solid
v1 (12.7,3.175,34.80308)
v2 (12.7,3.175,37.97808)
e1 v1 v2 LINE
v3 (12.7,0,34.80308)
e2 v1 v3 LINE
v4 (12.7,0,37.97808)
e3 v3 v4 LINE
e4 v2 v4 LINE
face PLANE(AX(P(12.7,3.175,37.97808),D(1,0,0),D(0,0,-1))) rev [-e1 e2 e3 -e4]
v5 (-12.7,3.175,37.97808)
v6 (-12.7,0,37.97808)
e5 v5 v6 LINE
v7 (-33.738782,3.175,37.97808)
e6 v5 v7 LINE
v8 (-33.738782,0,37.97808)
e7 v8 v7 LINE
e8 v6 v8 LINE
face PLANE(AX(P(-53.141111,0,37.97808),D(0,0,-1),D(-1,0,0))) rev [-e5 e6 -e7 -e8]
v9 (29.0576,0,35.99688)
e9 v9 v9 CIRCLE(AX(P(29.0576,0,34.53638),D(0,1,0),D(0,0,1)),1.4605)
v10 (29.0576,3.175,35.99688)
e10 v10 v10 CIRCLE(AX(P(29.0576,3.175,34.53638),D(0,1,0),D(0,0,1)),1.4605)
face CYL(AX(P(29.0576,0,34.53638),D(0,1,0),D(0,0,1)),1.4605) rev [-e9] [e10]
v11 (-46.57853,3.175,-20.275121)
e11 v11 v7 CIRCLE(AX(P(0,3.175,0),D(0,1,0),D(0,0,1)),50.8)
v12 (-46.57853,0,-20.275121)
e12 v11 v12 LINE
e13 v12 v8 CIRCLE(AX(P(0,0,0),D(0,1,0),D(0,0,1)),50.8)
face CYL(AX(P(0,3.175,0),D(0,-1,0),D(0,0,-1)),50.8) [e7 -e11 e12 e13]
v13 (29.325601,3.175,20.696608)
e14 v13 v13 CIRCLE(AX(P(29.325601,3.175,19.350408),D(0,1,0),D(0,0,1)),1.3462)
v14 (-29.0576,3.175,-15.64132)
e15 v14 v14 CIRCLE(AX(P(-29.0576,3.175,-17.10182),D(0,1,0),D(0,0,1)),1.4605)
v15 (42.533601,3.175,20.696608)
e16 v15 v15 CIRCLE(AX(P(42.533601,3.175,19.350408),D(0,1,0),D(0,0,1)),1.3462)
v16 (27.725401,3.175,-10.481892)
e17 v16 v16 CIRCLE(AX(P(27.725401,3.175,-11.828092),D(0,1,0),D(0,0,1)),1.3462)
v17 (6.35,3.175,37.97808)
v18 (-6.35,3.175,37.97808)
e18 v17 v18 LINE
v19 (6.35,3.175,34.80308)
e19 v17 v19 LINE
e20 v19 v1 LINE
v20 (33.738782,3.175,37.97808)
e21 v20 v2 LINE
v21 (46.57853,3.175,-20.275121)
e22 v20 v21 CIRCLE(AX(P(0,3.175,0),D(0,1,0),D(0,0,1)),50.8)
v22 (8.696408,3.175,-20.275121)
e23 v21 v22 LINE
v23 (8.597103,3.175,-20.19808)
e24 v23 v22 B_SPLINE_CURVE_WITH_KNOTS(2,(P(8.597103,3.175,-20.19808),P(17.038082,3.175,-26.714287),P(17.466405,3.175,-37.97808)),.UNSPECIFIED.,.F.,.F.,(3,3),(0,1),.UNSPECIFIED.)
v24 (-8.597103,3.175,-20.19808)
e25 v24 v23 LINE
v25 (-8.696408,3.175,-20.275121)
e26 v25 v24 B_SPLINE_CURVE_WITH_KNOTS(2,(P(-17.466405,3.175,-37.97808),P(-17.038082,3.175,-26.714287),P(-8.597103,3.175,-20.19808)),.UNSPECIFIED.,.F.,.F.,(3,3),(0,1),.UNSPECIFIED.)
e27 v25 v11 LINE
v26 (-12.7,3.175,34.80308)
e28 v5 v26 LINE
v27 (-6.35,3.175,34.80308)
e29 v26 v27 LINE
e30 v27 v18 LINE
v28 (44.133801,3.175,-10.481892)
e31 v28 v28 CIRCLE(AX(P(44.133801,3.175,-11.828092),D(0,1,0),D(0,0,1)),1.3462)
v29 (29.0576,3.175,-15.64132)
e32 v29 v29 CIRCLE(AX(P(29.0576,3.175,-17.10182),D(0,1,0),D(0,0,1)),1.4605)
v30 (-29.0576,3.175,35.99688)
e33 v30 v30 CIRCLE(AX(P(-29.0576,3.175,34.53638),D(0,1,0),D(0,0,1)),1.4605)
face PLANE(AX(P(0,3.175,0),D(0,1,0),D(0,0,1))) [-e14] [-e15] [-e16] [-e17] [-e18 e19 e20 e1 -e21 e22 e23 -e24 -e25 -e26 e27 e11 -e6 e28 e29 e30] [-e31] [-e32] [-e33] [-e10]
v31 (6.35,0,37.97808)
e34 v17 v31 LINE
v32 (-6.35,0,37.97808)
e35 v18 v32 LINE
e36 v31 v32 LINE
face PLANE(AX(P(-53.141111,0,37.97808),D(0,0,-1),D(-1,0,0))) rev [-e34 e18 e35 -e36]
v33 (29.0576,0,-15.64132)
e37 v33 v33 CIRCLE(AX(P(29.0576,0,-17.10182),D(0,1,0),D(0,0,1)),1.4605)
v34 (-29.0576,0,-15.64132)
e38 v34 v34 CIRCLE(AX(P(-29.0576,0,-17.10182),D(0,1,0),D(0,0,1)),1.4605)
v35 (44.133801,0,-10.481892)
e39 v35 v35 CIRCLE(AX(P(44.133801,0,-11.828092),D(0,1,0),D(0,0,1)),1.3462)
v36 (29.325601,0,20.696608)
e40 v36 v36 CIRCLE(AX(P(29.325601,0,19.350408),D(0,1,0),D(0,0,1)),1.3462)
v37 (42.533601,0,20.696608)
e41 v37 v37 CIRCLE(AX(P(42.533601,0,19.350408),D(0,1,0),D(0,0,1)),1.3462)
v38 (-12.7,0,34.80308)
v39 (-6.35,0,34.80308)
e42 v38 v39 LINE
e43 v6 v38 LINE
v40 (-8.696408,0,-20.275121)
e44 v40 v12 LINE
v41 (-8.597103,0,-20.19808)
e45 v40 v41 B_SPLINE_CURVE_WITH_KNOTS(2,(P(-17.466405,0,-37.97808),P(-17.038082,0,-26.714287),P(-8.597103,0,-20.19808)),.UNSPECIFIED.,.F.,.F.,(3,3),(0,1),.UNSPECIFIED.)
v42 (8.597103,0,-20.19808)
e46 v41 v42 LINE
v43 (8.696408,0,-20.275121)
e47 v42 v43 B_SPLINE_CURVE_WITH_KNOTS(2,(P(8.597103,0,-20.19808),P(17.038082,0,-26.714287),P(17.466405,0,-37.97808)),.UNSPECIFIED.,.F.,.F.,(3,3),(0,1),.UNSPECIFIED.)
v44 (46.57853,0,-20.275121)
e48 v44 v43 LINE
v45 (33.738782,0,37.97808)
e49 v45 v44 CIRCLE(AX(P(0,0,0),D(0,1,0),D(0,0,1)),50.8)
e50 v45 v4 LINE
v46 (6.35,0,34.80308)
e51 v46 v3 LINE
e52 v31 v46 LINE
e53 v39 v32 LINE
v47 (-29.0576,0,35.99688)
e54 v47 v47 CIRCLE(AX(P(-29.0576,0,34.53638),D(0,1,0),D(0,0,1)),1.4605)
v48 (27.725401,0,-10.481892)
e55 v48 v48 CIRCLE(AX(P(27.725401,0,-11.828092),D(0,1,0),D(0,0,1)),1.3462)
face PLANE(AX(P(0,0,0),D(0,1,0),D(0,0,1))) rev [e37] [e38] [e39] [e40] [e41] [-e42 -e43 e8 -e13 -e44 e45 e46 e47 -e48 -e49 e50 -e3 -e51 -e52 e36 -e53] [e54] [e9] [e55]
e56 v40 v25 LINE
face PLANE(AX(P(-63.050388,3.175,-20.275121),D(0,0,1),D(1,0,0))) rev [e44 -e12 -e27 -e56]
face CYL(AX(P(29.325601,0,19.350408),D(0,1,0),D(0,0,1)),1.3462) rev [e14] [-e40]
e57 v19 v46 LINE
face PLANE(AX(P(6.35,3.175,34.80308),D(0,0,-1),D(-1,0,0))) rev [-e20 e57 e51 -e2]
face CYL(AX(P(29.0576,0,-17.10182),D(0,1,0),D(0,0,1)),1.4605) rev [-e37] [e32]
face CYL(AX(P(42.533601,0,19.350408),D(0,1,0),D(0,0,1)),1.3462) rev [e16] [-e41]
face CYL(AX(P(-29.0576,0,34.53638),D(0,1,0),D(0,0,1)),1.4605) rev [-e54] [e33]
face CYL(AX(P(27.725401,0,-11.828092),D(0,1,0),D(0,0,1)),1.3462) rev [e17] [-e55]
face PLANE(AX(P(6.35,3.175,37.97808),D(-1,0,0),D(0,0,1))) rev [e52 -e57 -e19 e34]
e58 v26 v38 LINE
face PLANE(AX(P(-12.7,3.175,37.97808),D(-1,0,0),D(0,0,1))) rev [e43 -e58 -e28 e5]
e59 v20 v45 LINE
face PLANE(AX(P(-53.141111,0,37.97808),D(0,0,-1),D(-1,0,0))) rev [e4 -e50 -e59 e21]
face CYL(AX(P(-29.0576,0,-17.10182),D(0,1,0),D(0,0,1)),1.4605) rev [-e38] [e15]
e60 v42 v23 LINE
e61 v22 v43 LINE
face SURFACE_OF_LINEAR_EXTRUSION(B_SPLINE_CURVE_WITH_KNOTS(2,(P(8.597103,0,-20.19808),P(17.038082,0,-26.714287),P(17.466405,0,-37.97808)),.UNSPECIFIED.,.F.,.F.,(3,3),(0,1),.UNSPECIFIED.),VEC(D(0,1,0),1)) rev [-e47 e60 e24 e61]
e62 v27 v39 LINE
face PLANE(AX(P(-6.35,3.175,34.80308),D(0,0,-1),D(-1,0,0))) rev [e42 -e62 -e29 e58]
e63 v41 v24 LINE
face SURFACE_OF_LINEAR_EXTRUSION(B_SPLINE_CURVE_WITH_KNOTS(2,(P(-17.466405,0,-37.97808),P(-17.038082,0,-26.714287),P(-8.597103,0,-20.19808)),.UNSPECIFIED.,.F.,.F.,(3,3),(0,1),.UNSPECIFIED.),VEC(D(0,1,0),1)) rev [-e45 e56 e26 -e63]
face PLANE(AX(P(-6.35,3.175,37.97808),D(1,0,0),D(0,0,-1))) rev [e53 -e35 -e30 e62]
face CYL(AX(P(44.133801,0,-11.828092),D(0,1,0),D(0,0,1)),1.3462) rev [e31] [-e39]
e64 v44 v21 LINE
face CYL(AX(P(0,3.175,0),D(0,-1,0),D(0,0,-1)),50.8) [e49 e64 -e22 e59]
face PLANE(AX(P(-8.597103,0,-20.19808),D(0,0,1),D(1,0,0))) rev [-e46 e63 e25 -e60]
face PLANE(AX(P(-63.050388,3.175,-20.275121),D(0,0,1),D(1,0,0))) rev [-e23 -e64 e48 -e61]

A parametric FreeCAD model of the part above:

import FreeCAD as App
import Part
import Sketcher
Q = App.Units.Quantity


def add_polygon(sketch, points):
    """Adds a closed chain of lines whose ends are joined by coincident constraints."""
    first, n = sketch.GeometryCount, len(points)
    for a, b in zip(points, points[1:] + points[:1]):
        sketch.addGeometry(Part.LineSegment(App.Vector(*a, 0), App.Vector(*b, 0)), False)
    for i in range(n):
        sketch.addConstraint(Sketcher.Constraint("Coincident", first + i, 2, first + (i + 1) % n, 1))

doc = App.newDocument("Part")
params = doc.addObject("Spreadsheet::Sheet", "Params")
for row, (alias, value) in enumerate([
    ("sketch1_diameter", "4 in"),
    ("pad1_length", "0.125 in"),
    ("pocket1_length", "0.125 in"),
    ("sketch3_diameter", "0.115 in"),
    ("pocket2_length", "0.125 in"),
    ("pocket3_length", "0.125 in"),
    ("sketch5_width", "0.25 in"),
    ("sketch5_height", "0.125 in"),
    ("pocket4_length", "0.125 in"),
    ("sketch6_diameter", "0.106 in"),
    ("pocket5_length", "0.125 in"),
], start=1):
    params.set(f"A{row}", alias)
    params.set(f"B{row}", "=" + value)
    params.setAlias(f"B{row}", alias)

body = doc.addObject("PartDesign::Body", "Body")

# Sketch on XZ plane
sketch1 = body.newObject("Sketcher::SketchObject", "Sketch")
sketch1.AttachmentSupport = (doc.getObject("XZ_Plane"), [""])
sketch1.MapMode = "FlatFace"
sketch1.addGeometry(Part.Circle(App.Vector(0, 0, 0), App.Vector(0, 0, 1), 51), False)
sketch1.addConstraint(Sketcher.Constraint("Coincident", 0, 3, -1, 1))
sketch1.addConstraint(Sketcher.Constraint("Diameter", 0, Q("4 in")))
sketch1.setExpression("Constraints[1]", "Params.sketch1_diameter")
pad1 = body.newObject("PartDesign::Pad", "Pad")
pad1.Profile = sketch1
pad1.setExpression("Length", "Params.pad1_length")
pad1.Reversed = True

# Sketch on XZ plane
sketch2 = body.newObject("Sketcher::SketchObject", "Sketch001")
sketch2.AttachmentSupport = (doc.getObject("XZ_Plane"), [""])
sketch2.MapMode = "FlatFace"
sketch2.AttachmentOffset = App.Placement(App.Vector(0, 0, -0.125 * 25.4), App.Rotation())
sketch2.addGeometry(Part.LineSegment(App.Vector(61.74668, -55.715142, 0), App.Vector(-53.141111, -55.715142, 0)), False)  # 0
sketch2.addGeometry(Part.LineSegment(App.Vector(-53.141111, -55.715142, 0), App.Vector(-53.141111, -37.97808, 0)), False)  # 1
sketch2.addGeometry(Part.LineSegment(App.Vector(-53.141111, -37.97808, 0), App.Vector(-17.466405, -37.97808, 0)), False)  # 2
sketch2.addGeometry(Part.BSplineCurve([App.Vector(-17.466405, -37.97808, 0), App.Vector(-17.038082, -26.714287, 0), App.Vector(-8.597103, -20.19808, 0)], [3, 3], [0, 1], False, 2, [1, 1, 1], False), False)  # 3
sketch2.addGeometry(Part.LineSegment(App.Vector(-8.597103, -20.19808, 0), App.Vector(8.597103, -20.19808, 0)), False)  # 4
sketch2.addGeometry(Part.BSplineCurve([App.Vector(17.466405, -37.97808, 0), App.Vector(17.038082, -26.714287, 0), App.Vector(8.597103, -20.19808, 0)], [3, 3], [0, 1], False, 2, [1, 1, 1], False), False)  # 5
sketch2.addGeometry(Part.LineSegment(App.Vector(17.466405, -37.97808, 0), App.Vector(61.74668, -37.97808, 0)), False)  # 6
sketch2.addGeometry(Part.LineSegment(App.Vector(61.74668, -37.97808, 0), App.Vector(61.74668, -55.715142, 0)), False)  # 7
add_polygon(sketch2, [(-53.141111, 37.97808), (-53.141111, 55.715142), (61.74668, 55.715142), (61.74668, 37.97808)])  # lines 8-11
sketch2.addConstraint(Sketcher.Constraint("Block", 3))
sketch2.addConstraint(Sketcher.Constraint("Block", 5))
sketch2.addConstraint(Sketcher.Constraint("Coincident", 0, 2, 1, 1))
sketch2.addConstraint(Sketcher.Constraint("Coincident", 1, 2, 2, 1))
sketch2.addConstraint(Sketcher.Constraint("Coincident", 2, 2, 3, 1))
sketch2.addConstraint(Sketcher.Constraint("Coincident", 3, 2, 4, 1))
sketch2.addConstraint(Sketcher.Constraint("Coincident", 4, 2, 5, 2))
sketch2.addConstraint(Sketcher.Constraint("Coincident", 5, 1, 6, 1))
sketch2.addConstraint(Sketcher.Constraint("Coincident", 6, 2, 7, 1))
sketch2.addConstraint(Sketcher.Constraint("Coincident", 7, 2, 0, 1))
sketch2.addConstraint(Sketcher.Constraint("Horizontal", 0))
sketch2.addConstraint(Sketcher.Constraint("Vertical", 1))
sketch2.addConstraint(Sketcher.Constraint("Horizontal", 2))
sketch2.addConstraint(Sketcher.Constraint("Horizontal", 6))
sketch2.addConstraint(Sketcher.Constraint("Vertical", 7))
sketch2.addConstraint(Sketcher.Constraint("Vertical", 8))
sketch2.addConstraint(Sketcher.Constraint("Horizontal", 9))
sketch2.addConstraint(Sketcher.Constraint("Vertical", 10))
sketch2.addConstraint(Sketcher.Constraint("Horizontal", 11))
sketch2.addConstraint(Sketcher.Constraint("Symmetric", 0, 2, 8, 2, -1))
sketch2.addConstraint(Sketcher.Constraint("Symmetric", 6, 2, 10, 2, -1))
sketch2.addConstraint(Sketcher.Constraint("DistanceX", 0, 2, 0, 1, Q("114.887791 mm")))
sketch2.addConstraint(Sketcher.Constraint("DistanceX", 2, 1, 2, 2, Q("35.674706 mm")))
sketch2.addConstraint(Sketcher.Constraint("DistanceY", 1, 1, 1, 2, Q("17.737062 mm")))
pocket1 = body.newObject("PartDesign::Pocket", "Pocket")
pocket1.Profile = sketch2
pocket1.setExpression("Length", "Params.pocket1_length")
pocket1.Reversed = True

# Sketch on XZ plane
sketch3 = body.newObject("Sketcher::SketchObject", "Sketch002")
sketch3.AttachmentSupport = (doc.getObject("XZ_Plane"), [""])
sketch3.MapMode = "FlatFace"
sketch3.AttachmentOffset = App.Placement(App.Vector(0, 0, -0.125 * 25.4), App.Rotation())
sketch3.addGeometry(Part.Circle(App.Vector(-29.1, -17.1, 0), App.Vector(0, 0, 1), 1.5), False)
sketch3.addGeometry(Part.Circle(App.Vector(29.1, -17.1, 0), App.Vector(0, 0, 1), 1.5), False)
sketch3.addGeometry(Part.Circle(App.Vector(29.1, 34.5, 0), App.Vector(0, 0, 1), 1.5), False)
sketch3.addGeometry(Part.Circle(App.Vector(-29.1, 34.5, 0), App.Vector(0, 0, 1), 1.5), False)
sketch3.addConstraint(Sketcher.Constraint("Equal", 0, 1))
sketch3.addConstraint(Sketcher.Constraint("Equal", 1, 2))
sketch3.addConstraint(Sketcher.Constraint("Equal", 2, 3))
sketch3.addConstraint(Sketcher.Constraint("Symmetric", 0, 3, 1, 3, -2))
sketch3.addConstraint(Sketcher.Constraint("Symmetric", 2, 3, 3, 3, -2))
sketch3.addConstraint(Sketcher.Constraint("Vertical", 1, 3, 2, 3))
sketch3.addConstraint(Sketcher.Constraint("Diameter", 0, Q("0.115 in")))
sketch3.addConstraint(Sketcher.Constraint("DistanceX", 0, 3, -1, 1, Q("1.144 in")))
sketch3.addConstraint(Sketcher.Constraint("DistanceY", 1, 3, 2, 3, Q("2.033 in")))
sketch3.addConstraint(Sketcher.Constraint("DistanceY", 0, 3, -1, 1, Q("0.6733 in")))
sketch3.setExpression("Constraints[6]", "Params.sketch3_diameter")
pocket2 = body.newObject("PartDesign::Pocket", "Pocket001")
pocket2.Profile = sketch3
pocket2.setExpression("Length", "Params.pocket2_length")
pocket2.Reversed = True

# Sketch on XZ plane
sketch4 = body.newObject("Sketcher::SketchObject", "Sketch003")
sketch4.AttachmentSupport = (doc.getObject("XZ_Plane"), [""])
sketch4.MapMode = "FlatFace"
add_polygon(sketch4, [(-63, -20), (-63, -49), (58, -49), (58, -20)])  # lines 0-3
sketch4.addConstraint(Sketcher.Constraint("Vertical", 0))
sketch4.addConstraint(Sketcher.Constraint("Horizontal", 1))
sketch4.addConstraint(Sketcher.Constraint("Vertical", 2))
sketch4.addConstraint(Sketcher.Constraint("Horizontal", 3))
sketch4.addConstraint(Sketcher.Constraint("DistanceX", 1, 1, 1, 2, Q("120.831004 mm")))
sketch4.addConstraint(Sketcher.Constraint("DistanceY", 0, 2, 0, 1, Q("28.526713 mm")))
sketch4.addConstraint(Sketcher.Constraint("DistanceY", 2, 2, -1, 1, Q("20.275121 mm")))
sketch4.addConstraint(Sketcher.Constraint("DistanceX", 0, 2, -1, 1, Q("63.050388 mm")))
pocket3 = body.newObject("PartDesign::Pocket", "Pocket002")
pocket3.Profile = sketch4
pocket3.setExpression("Length", "Params.pocket3_length")

# Sketch on XZ plane
sketch5 = body.newObject("Sketcher::SketchObject", "Sketch004")
sketch5.AttachmentSupport = (doc.getObject("XZ_Plane"), [""])
sketch5.MapMode = "FlatFace"
add_polygon(sketch5, [(-12.7, 38), (-12.7, 34.8), (-6.3, 34.8), (-6.3, 38)])  # lines 0-3
add_polygon(sketch5, [(6.3, 38), (6.3, 34.8), (12.7, 34.8), (12.7, 38)])  # lines 4-7
sketch5.addConstraint(Sketcher.Constraint("Vertical", 0))
sketch5.addConstraint(Sketcher.Constraint("Horizontal", 1))
sketch5.addConstraint(Sketcher.Constraint("Vertical", 2))
sketch5.addConstraint(Sketcher.Constraint("Horizontal", 3))
sketch5.addConstraint(Sketcher.Constraint("Vertical", 4))
sketch5.addConstraint(Sketcher.Constraint("Horizontal", 5))
sketch5.addConstraint(Sketcher.Constraint("Vertical", 6))
sketch5.addConstraint(Sketcher.Constraint("Horizontal", 7))
sketch5.addConstraint(Sketcher.Constraint("Symmetric", 1, 2, 4, 2, -2))
sketch5.addConstraint(Sketcher.Constraint("Symmetric", 3, 2, 6, 2, -2))
sketch5.addConstraint(Sketcher.Constraint("DistanceX", 0, 2, 5, 2, Q("1 in")))
sketch5.addConstraint(Sketcher.Constraint("DistanceX", 1, 1, 1, 2, Q("0.25 in")))
sketch5.addConstraint(Sketcher.Constraint("DistanceY", 0, 2, 0, 1, Q("0.125 in")))
sketch5.addConstraint(Sketcher.Constraint("DistanceY", -1, 1, 0, 2, Q("1.3702 in")))
sketch5.setExpression("Constraints[19]", "Params.sketch5_width")
sketch5.setExpression("Constraints[20]", "Params.sketch5_height")
pocket4 = body.newObject("PartDesign::Pocket", "Pocket003")
pocket4.Profile = sketch5
pocket4.setExpression("Length", "Params.pocket4_length")

# Sketch on XZ plane
sketch6 = body.newObject("Sketcher::SketchObject", "Sketch005")
sketch6.AttachmentSupport = (doc.getObject("XZ_Plane"), [""])
sketch6.MapMode = "FlatFace"
sketch6.AttachmentOffset = App.Placement(App.Vector(0, 0, -0.125 * 25.4), App.Rotation())
sketch6.addGeometry(Part.Circle(App.Vector(27.7, -11.8, 0), App.Vector(0, 0, 1), 1.3), False)
sketch6.addGeometry(Part.Circle(App.Vector(44.1, -11.8, 0), App.Vector(0, 0, 1), 1.3), False)
sketch6.addGeometry(Part.Circle(App.Vector(42.5, 19.4, 0), App.Vector(0, 0, 1), 1.3), False)
sketch6.addGeometry(Part.Circle(App.Vector(29.3, 19.4, 0), App.Vector(0, 0, 1), 1.3), False)
sketch6.addConstraint(Sketcher.Constraint("Equal", 0, 1))
sketch6.addConstraint(Sketcher.Constraint("Equal", 1, 2))
sketch6.addConstraint(Sketcher.Constraint("Equal", 2, 3))
sketch6.addConstraint(Sketcher.Constraint("Horizontal", 0, 3, 1, 3))
sketch6.addConstraint(Sketcher.Constraint("Horizontal", 2, 3, 3, 3))
sketch6.addConstraint(Sketcher.Constraint("Diameter", 0, Q("0.106 in")))
sketch6.addConstraint(Sketcher.Constraint("DistanceX", 3, 3, 2, 3, Q("0.52 in")))
sketch6.addConstraint(Sketcher.Constraint("DistanceX", 0, 3, 1, 3, Q("0.646 in")))
sketch6.addConstraint(Sketcher.Constraint("DistanceX", 2, 3, 1, 3, Q("0.063 in")))
sketch6.addConstraint(Sketcher.Constraint("DistanceY", 1, 3, 2, 3, Q("1.2275 in")))
sketch6.addConstraint(Sketcher.Constraint("DistanceX", -1, 1, 0, 3, Q("27.725401 mm")))
sketch6.addConstraint(Sketcher.Constraint("DistanceY", 0, 3, -1, 1, Q("11.828092 mm")))
sketch6.setExpression("Constraints[5]", "Params.sketch6_diameter")
pocket5 = body.newObject("PartDesign::Pocket", "Pocket004")
pocket5.Profile = sketch6
pocket5.setExpression("Length", "Params.pocket5_length")
pocket5.Reversed = True

doc.recompute()
